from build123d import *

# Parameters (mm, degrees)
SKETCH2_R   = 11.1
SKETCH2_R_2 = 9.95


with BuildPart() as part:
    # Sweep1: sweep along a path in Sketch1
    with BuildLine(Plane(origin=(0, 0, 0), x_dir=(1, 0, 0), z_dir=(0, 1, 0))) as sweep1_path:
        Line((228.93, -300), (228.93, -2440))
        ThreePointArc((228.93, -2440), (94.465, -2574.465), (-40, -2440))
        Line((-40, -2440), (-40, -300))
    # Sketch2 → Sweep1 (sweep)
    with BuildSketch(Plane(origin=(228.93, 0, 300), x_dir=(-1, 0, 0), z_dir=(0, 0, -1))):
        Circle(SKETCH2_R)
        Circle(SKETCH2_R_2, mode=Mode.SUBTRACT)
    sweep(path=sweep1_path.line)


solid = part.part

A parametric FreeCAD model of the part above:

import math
import FreeCAD as App
import Part
import Sketcher
from FreeCAD import Vector
Q = App.Units.Quantity

doc = App.newDocument("Part")
body = doc.addObject("PartDesign::Body", "Body")

# Sketch on XY plane
sketch1 = body.newObject("Sketcher::SketchObject", "Sketch")
sketch1.AttachmentSupport = (doc.getObject("XY_Plane"), [""])
sketch1.MapMode = "FlatFace"
sketch1.AttachmentOffset = App.Placement(Vector(0, 0, 300), App.Rotation())
sketch1.addGeometry(Part.Circle(Vector(229, 0, 0), Vector(0, 0, 1), 11), False)
sketch1.addGeometry(Part.Circle(Vector(229, 0, 0), Vector(0, 0, 1), 10), False)
sketch1.addConstraint(Sketcher.Constraint("Coincident", 1, 3, 0, 3))
sketch1.addConstraint(Sketcher.Constraint("PointOnObject", 0, 3, -1))
sketch1.addConstraint(Sketcher.Constraint("Diameter", 0, Q("22.2 mm")))
sketch1.addConstraint(Sketcher.Constraint("Diameter", 1, Q("19.9 mm")))
sketch1.addConstraint(Sketcher.Constraint("DistanceX", -1, 1, 0, 3, Q("228.93 mm")))

# Sketch on XZ plane
sketch2 = body.newObject("Sketcher::SketchObject", "Sketch001")
sketch2.AttachmentSupport = (doc.getObject("XZ_Plane"), [""])
sketch2.MapMode = "FlatFace"
sketch2.addGeometry(Part.LineSegment(Vector(229, 300, 0), Vector(229, 2440, 0)), False)
sketch2.addGeometry(Part.ArcOfCircle(Part.Circle(Vector(94, 2440, 0), Vector(0, 0, 1), 134), math.radians(0), math.radians(180)), False)
sketch2.addGeometry(Part.LineSegment(Vector(-40, 2440, 0), Vector(-40, 300, 0)), False)
sketch2.addConstraint(Sketcher.Constraint("Tangent", 0, 2, 1, 1))
sketch2.addConstraint(Sketcher.Constraint("Tangent", 1, 2, 2, 1))
sketch2.addConstraint(Sketcher.Constraint("Vertical", 0))
sketch2.addConstraint(Sketcher.Constraint("Vertical", 2))
sketch2.addConstraint(Sketcher.Constraint("Horizontal", 0, 1, 2, 2))
sketch2.addConstraint(Sketcher.Constraint("DistanceY", 0, 1, 0, 2, Q("2140 mm")))
sketch2.addConstraint(Sketcher.Constraint("DistanceY", -1, 1, 1, 3, Q("2440 mm")))
sketch2.addConstraint(Sketcher.Constraint("DistanceX", 1, 2, -1, 1, Q("40 mm")))
sketch2.addConstraint(Sketcher.Constraint("Radius", 1, Q("134.465 mm")))
doc.recompute()

additivepipe = body.newObject("PartDesign::AdditivePipe", "AdditivePipe")
additivepipe.Profile = sketch1
additivepipe.Spine = (sketch2, ["Edge1", "Edge2", "Edge3"])

doc.recompute()
